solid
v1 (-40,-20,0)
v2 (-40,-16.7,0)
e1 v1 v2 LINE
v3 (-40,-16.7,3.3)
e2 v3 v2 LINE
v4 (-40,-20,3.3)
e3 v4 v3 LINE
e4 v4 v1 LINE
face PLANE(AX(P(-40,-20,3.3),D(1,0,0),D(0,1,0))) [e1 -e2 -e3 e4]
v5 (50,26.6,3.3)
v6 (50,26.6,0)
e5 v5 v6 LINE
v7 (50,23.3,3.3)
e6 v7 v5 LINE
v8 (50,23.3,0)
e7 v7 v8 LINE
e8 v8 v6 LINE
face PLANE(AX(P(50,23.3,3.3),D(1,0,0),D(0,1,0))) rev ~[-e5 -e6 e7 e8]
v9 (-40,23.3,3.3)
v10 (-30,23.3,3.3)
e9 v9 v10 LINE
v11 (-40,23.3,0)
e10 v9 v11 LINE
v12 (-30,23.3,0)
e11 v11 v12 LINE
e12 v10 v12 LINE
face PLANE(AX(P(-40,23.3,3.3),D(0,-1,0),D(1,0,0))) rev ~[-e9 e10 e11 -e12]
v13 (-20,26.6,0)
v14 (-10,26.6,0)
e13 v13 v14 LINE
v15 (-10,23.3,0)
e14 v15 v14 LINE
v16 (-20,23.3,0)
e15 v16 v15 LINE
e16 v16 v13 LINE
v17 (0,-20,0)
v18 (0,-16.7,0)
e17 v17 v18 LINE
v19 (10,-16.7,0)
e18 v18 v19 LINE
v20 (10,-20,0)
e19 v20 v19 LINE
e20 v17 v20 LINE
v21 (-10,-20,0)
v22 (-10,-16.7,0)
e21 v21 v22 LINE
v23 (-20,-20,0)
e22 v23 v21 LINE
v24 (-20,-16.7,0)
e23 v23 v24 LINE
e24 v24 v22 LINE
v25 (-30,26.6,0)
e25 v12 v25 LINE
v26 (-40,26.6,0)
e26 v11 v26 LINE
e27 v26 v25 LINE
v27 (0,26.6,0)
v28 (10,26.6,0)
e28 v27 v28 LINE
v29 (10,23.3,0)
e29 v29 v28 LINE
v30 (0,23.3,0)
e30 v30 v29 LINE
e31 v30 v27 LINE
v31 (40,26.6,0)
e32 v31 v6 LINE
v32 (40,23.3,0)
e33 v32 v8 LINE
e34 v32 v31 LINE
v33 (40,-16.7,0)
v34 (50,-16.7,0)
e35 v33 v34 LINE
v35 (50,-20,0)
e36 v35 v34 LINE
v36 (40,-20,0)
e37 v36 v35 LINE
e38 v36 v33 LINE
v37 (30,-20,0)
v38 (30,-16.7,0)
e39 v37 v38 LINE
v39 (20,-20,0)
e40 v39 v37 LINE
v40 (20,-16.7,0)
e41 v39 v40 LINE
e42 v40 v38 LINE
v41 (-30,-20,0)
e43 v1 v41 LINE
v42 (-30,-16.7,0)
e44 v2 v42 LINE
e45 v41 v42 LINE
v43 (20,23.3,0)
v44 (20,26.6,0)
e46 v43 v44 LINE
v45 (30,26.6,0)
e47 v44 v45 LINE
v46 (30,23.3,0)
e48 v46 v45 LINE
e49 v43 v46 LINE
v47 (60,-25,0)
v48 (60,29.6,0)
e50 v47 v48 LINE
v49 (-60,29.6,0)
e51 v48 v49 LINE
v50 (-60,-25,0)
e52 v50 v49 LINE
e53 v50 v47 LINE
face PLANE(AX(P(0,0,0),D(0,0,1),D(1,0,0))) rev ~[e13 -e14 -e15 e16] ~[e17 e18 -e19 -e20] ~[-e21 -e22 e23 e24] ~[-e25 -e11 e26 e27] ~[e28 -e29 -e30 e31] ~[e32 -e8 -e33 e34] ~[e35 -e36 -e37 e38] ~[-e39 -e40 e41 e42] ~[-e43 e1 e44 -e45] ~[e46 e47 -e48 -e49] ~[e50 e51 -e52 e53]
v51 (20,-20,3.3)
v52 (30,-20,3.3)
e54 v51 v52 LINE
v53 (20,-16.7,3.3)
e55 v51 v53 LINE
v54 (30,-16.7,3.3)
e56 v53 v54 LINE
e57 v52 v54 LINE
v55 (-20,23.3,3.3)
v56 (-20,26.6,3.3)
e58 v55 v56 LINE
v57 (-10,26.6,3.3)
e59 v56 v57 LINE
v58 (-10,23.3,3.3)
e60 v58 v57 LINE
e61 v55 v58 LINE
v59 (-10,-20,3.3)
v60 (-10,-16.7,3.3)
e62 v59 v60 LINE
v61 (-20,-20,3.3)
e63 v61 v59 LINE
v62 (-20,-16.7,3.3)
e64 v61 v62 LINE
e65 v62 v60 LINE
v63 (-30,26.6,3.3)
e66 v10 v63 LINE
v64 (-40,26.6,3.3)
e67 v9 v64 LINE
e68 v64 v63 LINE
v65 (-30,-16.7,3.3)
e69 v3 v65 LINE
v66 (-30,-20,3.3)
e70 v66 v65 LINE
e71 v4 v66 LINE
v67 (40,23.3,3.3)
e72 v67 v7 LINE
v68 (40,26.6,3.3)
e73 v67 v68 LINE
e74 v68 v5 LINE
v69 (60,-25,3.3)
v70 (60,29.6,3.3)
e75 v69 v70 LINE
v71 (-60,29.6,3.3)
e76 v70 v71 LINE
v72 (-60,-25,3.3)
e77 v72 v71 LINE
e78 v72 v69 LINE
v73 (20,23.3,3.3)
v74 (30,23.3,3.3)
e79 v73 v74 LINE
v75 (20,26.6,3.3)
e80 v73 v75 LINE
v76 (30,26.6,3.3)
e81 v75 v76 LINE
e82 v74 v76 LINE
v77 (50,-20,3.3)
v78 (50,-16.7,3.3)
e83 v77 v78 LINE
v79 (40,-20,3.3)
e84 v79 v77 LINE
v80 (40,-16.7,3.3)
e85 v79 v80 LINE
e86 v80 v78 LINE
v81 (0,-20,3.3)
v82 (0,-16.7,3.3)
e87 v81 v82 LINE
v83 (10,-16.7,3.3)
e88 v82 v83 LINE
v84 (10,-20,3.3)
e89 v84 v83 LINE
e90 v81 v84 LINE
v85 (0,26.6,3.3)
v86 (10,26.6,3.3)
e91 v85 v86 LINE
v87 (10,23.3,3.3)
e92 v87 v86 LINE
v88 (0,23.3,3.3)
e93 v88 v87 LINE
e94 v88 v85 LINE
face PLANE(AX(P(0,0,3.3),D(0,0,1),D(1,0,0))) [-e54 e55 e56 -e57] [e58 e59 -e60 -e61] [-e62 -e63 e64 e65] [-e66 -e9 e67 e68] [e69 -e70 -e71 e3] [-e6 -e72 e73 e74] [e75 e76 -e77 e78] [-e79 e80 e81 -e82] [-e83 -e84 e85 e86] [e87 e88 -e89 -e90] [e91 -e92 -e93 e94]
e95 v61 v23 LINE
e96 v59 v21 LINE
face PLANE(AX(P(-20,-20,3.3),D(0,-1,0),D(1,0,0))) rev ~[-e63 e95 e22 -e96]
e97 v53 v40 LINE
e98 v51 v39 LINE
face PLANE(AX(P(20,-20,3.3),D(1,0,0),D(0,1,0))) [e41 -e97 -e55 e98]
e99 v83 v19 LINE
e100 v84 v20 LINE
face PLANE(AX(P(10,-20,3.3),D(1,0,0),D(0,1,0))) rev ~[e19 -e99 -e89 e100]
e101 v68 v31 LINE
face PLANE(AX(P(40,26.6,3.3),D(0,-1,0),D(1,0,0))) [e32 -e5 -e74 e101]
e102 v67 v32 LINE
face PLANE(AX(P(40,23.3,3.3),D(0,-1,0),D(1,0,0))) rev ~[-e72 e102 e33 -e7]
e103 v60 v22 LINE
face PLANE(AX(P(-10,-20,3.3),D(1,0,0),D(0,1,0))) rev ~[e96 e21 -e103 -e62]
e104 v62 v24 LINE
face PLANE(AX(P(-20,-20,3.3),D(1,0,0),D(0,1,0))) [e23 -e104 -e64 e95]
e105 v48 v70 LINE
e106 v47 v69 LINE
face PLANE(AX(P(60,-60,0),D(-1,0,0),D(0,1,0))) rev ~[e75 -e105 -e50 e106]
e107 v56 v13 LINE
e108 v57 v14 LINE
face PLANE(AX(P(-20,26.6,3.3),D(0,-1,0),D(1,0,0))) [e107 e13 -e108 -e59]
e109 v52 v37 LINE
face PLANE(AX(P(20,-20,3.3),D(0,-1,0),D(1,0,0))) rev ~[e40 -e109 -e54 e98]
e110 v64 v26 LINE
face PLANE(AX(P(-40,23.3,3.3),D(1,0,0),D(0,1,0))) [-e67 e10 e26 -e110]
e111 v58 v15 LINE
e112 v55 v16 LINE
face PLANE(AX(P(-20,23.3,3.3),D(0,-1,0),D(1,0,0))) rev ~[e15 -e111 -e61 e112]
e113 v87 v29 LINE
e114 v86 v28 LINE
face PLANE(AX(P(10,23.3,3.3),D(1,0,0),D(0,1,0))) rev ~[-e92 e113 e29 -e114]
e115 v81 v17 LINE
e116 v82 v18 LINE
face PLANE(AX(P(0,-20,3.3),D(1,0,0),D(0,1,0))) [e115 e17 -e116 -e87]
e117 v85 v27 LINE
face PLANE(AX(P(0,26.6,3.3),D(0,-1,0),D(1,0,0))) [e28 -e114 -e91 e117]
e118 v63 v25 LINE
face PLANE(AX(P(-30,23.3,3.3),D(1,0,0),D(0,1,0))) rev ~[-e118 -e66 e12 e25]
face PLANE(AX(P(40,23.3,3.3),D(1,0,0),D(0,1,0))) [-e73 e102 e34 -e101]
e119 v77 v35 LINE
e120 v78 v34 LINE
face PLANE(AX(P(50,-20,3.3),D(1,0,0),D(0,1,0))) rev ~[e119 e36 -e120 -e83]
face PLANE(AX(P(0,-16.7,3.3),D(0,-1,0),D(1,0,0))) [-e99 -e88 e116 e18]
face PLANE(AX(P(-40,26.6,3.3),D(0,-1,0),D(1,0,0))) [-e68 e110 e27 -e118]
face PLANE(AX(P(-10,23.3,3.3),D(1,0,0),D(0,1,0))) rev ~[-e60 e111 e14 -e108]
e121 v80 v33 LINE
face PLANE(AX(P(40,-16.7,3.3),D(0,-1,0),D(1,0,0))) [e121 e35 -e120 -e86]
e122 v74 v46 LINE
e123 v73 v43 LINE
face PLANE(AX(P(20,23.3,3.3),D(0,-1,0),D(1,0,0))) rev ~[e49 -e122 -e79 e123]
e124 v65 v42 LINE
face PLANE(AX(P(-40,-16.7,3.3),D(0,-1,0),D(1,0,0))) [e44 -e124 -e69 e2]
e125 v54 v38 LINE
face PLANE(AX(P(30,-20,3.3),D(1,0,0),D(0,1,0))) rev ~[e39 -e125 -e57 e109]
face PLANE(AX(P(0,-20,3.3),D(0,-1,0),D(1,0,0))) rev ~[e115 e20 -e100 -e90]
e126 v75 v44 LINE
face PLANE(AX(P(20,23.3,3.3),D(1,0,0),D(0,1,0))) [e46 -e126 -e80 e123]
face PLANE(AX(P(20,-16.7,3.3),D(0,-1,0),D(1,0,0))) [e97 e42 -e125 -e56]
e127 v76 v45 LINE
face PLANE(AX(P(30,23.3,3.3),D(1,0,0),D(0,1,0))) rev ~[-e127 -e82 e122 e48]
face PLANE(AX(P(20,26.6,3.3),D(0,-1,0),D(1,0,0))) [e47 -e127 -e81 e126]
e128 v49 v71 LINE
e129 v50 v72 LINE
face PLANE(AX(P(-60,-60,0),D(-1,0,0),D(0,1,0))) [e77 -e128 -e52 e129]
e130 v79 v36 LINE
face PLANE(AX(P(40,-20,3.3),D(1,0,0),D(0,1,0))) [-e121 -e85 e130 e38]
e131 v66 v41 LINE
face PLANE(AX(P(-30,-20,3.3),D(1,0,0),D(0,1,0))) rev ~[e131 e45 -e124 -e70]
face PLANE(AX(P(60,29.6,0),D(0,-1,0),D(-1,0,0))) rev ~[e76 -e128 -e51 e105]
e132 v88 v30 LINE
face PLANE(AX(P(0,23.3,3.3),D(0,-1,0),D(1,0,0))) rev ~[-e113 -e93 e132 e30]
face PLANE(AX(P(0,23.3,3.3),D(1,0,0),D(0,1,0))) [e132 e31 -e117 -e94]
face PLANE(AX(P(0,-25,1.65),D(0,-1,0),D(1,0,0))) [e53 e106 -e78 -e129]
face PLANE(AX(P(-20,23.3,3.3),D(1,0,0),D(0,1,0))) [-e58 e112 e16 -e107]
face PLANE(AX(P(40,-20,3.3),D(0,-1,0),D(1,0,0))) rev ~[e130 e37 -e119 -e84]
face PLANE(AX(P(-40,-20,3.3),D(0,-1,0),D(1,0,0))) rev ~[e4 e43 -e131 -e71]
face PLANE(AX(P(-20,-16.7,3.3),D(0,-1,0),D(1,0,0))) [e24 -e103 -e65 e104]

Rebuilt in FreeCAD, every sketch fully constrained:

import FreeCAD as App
import Part
import Sketcher
Q = App.Units.Quantity


def add_polygon(sketch, points):
    """Adds a closed chain of lines whose ends are joined by coincident constraints."""
    first, n = sketch.GeometryCount, len(points)
    for a, b in zip(points, points[1:] + points[:1]):
        sketch.addGeometry(Part.LineSegment(App.Vector(*a, 0), App.Vector(*b, 0)), False)
    for i in range(n):
        sketch.addConstraint(Sketcher.Constraint("Coincident", first + i, 2, first + (i + 1) % n, 1))

doc = App.newDocument("Part")
body = doc.addObject("PartDesign::Body", "Body")

sketch1 = body.newObject("Sketcher::SketchObject", "Sketch")
sketch1.AttachmentSupport = (doc.getObject("XY_Plane"), [""])
sketch1.MapMode = "FlatFace"
add_polygon(sketch1, [(-60, 60), (-60, -60), (60, -60), (60, 60)])
sketch1.addConstraint(Sketcher.Constraint("Vertical", 0))
sketch1.addConstraint(Sketcher.Constraint("Horizontal", 1))
sketch1.addConstraint(Sketcher.Constraint("Vertical", 2))
sketch1.addConstraint(Sketcher.Constraint("Horizontal", 3))
sketch1.addConstraint(Sketcher.Constraint("Symmetric", 0, 2, 2, 2, -1, 1))
sketch1.addConstraint(Sketcher.Constraint("Equal", 3, 0))
sketch1.addConstraint(Sketcher.Constraint("DistanceX", 1, 1, 1, 2, Q("120 mm")))
pad1 = body.newObject("PartDesign::Pad", "Pad")
pad1.Profile = sketch1
pad1.Length = 3.3

sketch2 = body.newObject("Sketcher::SketchObject", "Sketch001")
sketch2.AttachmentSupport = (doc.getObject("XY_Plane"), [""])
sketch2.MapMode = "FlatFace"
sketch2.AttachmentOffset = App.Placement(App.Vector(0, 0, 3.3), App.Rotation())
add_polygon(sketch2, [(40, -16.7), (40, -20), (50, -20), (50, -16.7)])
add_polygon(sketch2, [(40, 26.6), (40, 23.3), (50, 23.3), (50, 26.6)])
sketch2.addConstraint(Sketcher.Constraint("Vertical", 0))
sketch2.addConstraint(Sketcher.Constraint("Horizontal", 1))
sketch2.addConstraint(Sketcher.Constraint("Vertical", 2))
sketch2.addConstraint(Sketcher.Constraint("Horizontal", 3))
sketch2.addConstraint(Sketcher.Constraint("Vertical", 4))
sketch2.addConstraint(Sketcher.Constraint("Horizontal", 5))
sketch2.addConstraint(Sketcher.Constraint("Vertical", 6))
sketch2.addConstraint(Sketcher.Constraint("Horizontal", 7))
sketch2.addConstraint(Sketcher.Constraint("Vertical", 3, 2, 4, 2))
sketch2.addConstraint(Sketcher.Constraint("Vertical", 2, 2, 5, 2))
sketch2.addConstraint(Sketcher.Constraint("Equal", 2, 4))
sketch2.addConstraint(Sketcher.Constraint("DistanceX", 1, 1, 1, 2, Q("10 mm")))
sketch2.addConstraint(Sketcher.Constraint("DistanceY", 0, 2, 0, 1, Q("3.3 mm")))
sketch2.addConstraint(Sketcher.Constraint("DistanceX", -1, 1, 0, 2, Q("40 mm")))
sketch2.addConstraint(Sketcher.Constraint("DistanceY", 0, 2, -1, 1, Q("20 mm")))
sketch2.addConstraint(Sketcher.Constraint("DistanceY", 3, 2, 4, 2, Q("40 mm")))
pocket1 = body.newObject("PartDesign::Pocket", "Pocket")
pocket1.Profile = sketch2
pocket1.Length = 3.3
doc.recompute()

linearpattern = body.newObject("PartDesign::LinearPattern", "LinearPattern")
linearpattern.Originals = [pocket1]
linearpattern.Direction = (doc.getObject("X_Axis"), [""])
linearpattern.Mode = "offset"
linearpattern.Offset = 20
linearpattern.Occurrences = 5
linearpattern.Reversed = True
body.Tip = linearpattern

sketch3 = body.newObject("Sketcher::SketchObject", "Sketch002")
sketch3.AttachmentSupport = (doc.getObject("XY_Plane"), [""])
sketch3.MapMode = "FlatFace"
add_polygon(sketch3, [(60, 60), (60, 29.6), (-60, 29.6), (-60, 60)])
sketch3.addConstraint(Sketcher.Constraint("Vertical", 0))
sketch3.addConstraint(Sketcher.Constraint("Horizontal", 1))
sketch3.addConstraint(Sketcher.Constraint("Vertical", 2))
sketch3.addConstraint(Sketcher.Constraint("Horizontal", 3))
sketch3.addConstraint(Sketcher.Constraint("DistanceX", 1, 2, 1, 1, Q("120 mm")))
sketch3.addConstraint(Sketcher.Constraint("DistanceY", 0, 2, 0, 1, Q("30.4 mm")))
sketch3.addConstraint(Sketcher.Constraint("DistanceX", -1, 1, 0, 2, Q("60 mm")))
sketch3.addConstraint(Sketcher.Constraint("DistanceY", -1, 1, 2, 2, Q("60 mm")))
pocket2 = body.newObject("PartDesign::Pocket", "Pocket001")
pocket2.Profile = sketch3
pocket2.Length = 3.3
pocket2.Reversed = True

sketch4 = body.newObject("Sketcher::SketchObject", "Sketch003")
sketch4.AttachmentSupport = (doc.getObject("XZ_Plane"), [""])
sketch4.MapMode = "FlatFace"
sketch4.AttachmentOffset = App.Placement(App.Vector(0, 0, 60), App.Rotation())
add_polygon(sketch4, [(-60, 3.3), (-60, 0), (60, 0), (60, 3.3)])
sketch4.addConstraint(Sketcher.Constraint("Vertical", 0))
sketch4.addConstraint(Sketcher.Constraint("Horizontal", 1))
sketch4.addConstraint(Sketcher.Constraint("Vertical", 2))
sketch4.addConstraint(Sketcher.Constraint("Horizontal", 3))
sketch4.addConstraint(Sketcher.Constraint("Symmetric", 0, 2, 1, 2, -1, 1))
sketch4.addConstraint(Sketcher.Constraint("DistanceX", 1, 1, 1, 2, Q("120 mm")))
sketch4.addConstraint(Sketcher.Constraint("DistanceY", 0, 2, 0, 1, Q("3.3 mm")))
pocket3 = body.newObject("PartDesign::Pocket", "Pocket002")
pocket3.Profile = sketch4
pocket3.Length = 35

doc.recompute()
